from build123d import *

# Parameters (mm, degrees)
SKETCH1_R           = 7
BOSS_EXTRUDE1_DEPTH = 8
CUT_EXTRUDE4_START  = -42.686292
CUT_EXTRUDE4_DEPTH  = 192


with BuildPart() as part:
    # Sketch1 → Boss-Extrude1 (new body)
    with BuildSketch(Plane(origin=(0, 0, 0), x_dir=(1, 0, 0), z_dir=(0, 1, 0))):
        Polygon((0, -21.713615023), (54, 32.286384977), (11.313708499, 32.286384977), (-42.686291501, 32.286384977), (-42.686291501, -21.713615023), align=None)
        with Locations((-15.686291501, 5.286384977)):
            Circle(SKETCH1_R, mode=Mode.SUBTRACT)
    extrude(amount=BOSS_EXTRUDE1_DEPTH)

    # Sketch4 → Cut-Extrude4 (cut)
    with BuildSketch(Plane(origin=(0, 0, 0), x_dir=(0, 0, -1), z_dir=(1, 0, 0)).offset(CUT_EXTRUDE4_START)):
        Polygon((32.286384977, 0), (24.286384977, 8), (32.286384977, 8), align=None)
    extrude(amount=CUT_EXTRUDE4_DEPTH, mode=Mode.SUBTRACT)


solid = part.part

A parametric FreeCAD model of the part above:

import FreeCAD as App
import Part
import Sketcher
from FreeCAD import Vector
Q = App.Units.Quantity

doc = App.newDocument("Part")
body = doc.addObject("PartDesign::Body", "Body")

# Sketch on XZ plane
sketch1 = doc.addObject("Sketcher::SketchObject", "Sketch")
body.addObject(sketch1)
sketch1.AttachmentSupport = (doc.XZ_Plane, [""])
sketch1.MapMode = "FlatFace"
sketch1.addGeometry([
    Part.LineSegment(Vector(0, 22, 0), Vector(54, -32, 0)),  # 0
    Part.LineSegment(Vector(54, -32, 0), Vector(-43, -32, 0)),  # 1
    Part.LineSegment(Vector(-43, -32, 0), Vector(-43, 22, 0)),  # 2
    Part.LineSegment(Vector(-43, 22, 0), Vector(0, 22, 0)),  # 3
    Part.Circle(Vector(-16, -5, 0), Vector(0, 0, 1), 7),  # 4
], False)
sketch1.addConstraint([
    Sketcher.Constraint("Coincident", 0, 2, 1, 1),
    Sketcher.Constraint("Coincident", 1, 2, 2, 1),
    Sketcher.Constraint("Coincident", 2, 2, 3, 1),
    Sketcher.Constraint("Coincident", 3, 2, 0, 1),
    Sketcher.Constraint("Horizontal", 1),
    Sketcher.Constraint("Vertical", 2),
    Sketcher.Constraint("Horizontal", 3),
    Sketcher.Constraint("PointOnObject", 3, 2, -2),
    Sketcher.Constraint("Diameter", 4, 14.0),
    Sketcher.Constraint("DistanceY", 2, 1, 2, 2, 54.0),
    Sketcher.Constraint("Angle", 0, Q("-45 deg")),
    Sketcher.Constraint("DistanceY", 0, 2, 4, 3, 27.0),
    Sketcher.Constraint("DistanceX", 1, 2, 4, 3, 27.0),
    Sketcher.Constraint("DistanceX", 1, 2, 1, 1, 96.686292),
    Sketcher.Constraint("DistanceY", 4, 3, -1, 1, 5.286385),
])
pad1 = doc.addObject("PartDesign::Pad", "Pad")
body.addObject(pad1)
pad1.Profile = sketch1
pad1.Length = 8
pad1.Reversed = True

# Sketch on YZ plane
sketch2 = doc.addObject("Sketcher::SketchObject", "Sketch001")
body.addObject(sketch2)
sketch2.AttachmentSupport = (doc.YZ_Plane, [""])
sketch2.MapMode = "FlatFace"
sketch2.AttachmentOffset = App.Placement(Vector(0, 0, -42.686292), App.Rotation())
sketch2.addGeometry([
    Part.LineSegment(Vector(8, -24, 0), Vector(0, -32, 0)),
    Part.LineSegment(Vector(0, -32, 0), Vector(8, -32, 0)),
    Part.LineSegment(Vector(8, -32, 0), Vector(8, -24, 0)),
], False)
sketch2.addConstraint([
    Sketcher.Constraint("Coincident", 0, 2, 1, 1),
    Sketcher.Constraint("Coincident", 1, 2, 2, 1),
    Sketcher.Constraint("Coincident", 2, 2, 0, 1),
    Sketcher.Constraint("Horizontal", 1),
    Sketcher.Constraint("Vertical", 2),
    Sketcher.Constraint("PointOnObject", 0, 2, -2),
    Sketcher.Constraint("Equal", 1, 2),
    Sketcher.Constraint("DistanceX", 1, 1, 1, 2, 8.0),
    Sketcher.Constraint("DistanceY", 0, 2, -1, 1, 32.286385),
])
pocket1 = doc.addObject("PartDesign::Pocket", "Pocket")
body.addObject(pocket1)
pocket1.Profile = sketch2
pocket1.Length = 192
pocket1.Reversed = True

doc.recompute()
